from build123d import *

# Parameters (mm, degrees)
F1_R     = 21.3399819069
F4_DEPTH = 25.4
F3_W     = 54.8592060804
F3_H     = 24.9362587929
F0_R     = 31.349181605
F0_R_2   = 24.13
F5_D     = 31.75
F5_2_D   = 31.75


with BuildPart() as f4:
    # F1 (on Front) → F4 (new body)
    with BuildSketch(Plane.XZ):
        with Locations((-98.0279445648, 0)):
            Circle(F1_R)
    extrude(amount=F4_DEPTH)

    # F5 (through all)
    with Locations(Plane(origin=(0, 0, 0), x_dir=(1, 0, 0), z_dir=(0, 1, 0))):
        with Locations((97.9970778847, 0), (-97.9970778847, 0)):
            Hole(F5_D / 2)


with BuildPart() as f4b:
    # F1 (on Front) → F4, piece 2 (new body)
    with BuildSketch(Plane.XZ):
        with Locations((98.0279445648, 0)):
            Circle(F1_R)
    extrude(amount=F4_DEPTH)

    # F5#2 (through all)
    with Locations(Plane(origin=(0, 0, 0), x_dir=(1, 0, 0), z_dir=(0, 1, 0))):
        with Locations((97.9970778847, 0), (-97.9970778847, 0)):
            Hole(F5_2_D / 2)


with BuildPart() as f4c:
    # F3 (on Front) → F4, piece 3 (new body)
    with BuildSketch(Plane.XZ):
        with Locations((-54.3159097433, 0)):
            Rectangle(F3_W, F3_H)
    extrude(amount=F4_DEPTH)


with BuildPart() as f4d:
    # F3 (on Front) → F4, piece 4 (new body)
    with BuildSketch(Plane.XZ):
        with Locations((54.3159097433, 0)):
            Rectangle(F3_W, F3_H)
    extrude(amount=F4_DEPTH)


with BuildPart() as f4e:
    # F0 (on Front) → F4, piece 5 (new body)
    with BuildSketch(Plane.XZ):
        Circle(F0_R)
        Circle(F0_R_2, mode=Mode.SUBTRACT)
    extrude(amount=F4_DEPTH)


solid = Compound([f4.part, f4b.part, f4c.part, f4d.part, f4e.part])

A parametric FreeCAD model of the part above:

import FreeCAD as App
import Part
import Sketcher
from FreeCAD import Vector
Q = App.Units.Quantity


def add_polygon(sketch, points):
    """Adds a closed chain of lines whose ends are joined by coincident constraints."""
    first, n = sketch.GeometryCount, len(points)
    for a, b in zip(points, points[1:] + points[:1]):
        sketch.addGeometry(Part.LineSegment(App.Vector(*a, 0), App.Vector(*b, 0)), False)
    for i in range(n):
        sketch.addConstraint(Sketcher.Constraint("Coincident", first + i, 2, first + (i + 1) % n, 1))

doc = App.newDocument("Part")
params = doc.addObject("Spreadsheet::Sheet", "Params")
for row, (alias, value) in enumerate([
    ("pad1_length", "1 in"),
    ("sketch2_diameter", "1.25 in"),
    ("hole_diameter", "1.25 in"),
    ("pad2_length", "1 in"),
    ("sketch4_diameter", "1.25 in"),
    ("hole2_diameter", "1.25 in"),
    ("pad3_length", "1 in"),
    ("pad4_length", "1 in"),
    ("sketch7_diameter", "1.9 in"),
    ("pad5_length", "1 in"),
], start=1):
    params.set(f"A{row}", alias)
    params.set(f"B{row}", "=" + value)
    params.setAlias(f"B{row}", alias)

body = doc.addObject("PartDesign::Body", "Body")

sketch1 = doc.addObject("Sketcher::SketchObject", "Sketch")
body.addObject(sketch1)
sketch1.AttachmentSupport = (doc.XZ_Plane, [""])
sketch1.MapMode = "FlatFace"
sketch1.addGeometry(Part.Circle(Vector(-98.027945, 0, 0), Vector(0, 0, 1), 21.339982), False)
sketch1.addConstraint([
    Sketcher.Constraint("PointOnObject", 0, 3, -1),
    Sketcher.Constraint("Diameter", 0, Q("42.679964 mm")),
    Sketcher.Constraint("DistanceX", 0, 3, -1, 1, Q("98.027945 mm")),
])
pad1 = doc.addObject("PartDesign::Pad", "Pad")
body.addObject(pad1)
pad1.Profile = sketch1
pad1.setExpression("Length", "Params.pad1_length")

sketch2 = doc.addObject("Sketcher::SketchObject", "Sketch001")
body.addObject(sketch2)
sketch2.AttachmentSupport = (doc.XZ_Plane, [""])
sketch2.MapMode = "FlatFace"
sketch2.addGeometry([
    Part.Circle(Vector(97.997078, 0, 0), Vector(0, 0, 1), 15.875),
    Part.Circle(Vector(-97.997078, 0, 0), Vector(0, 0, 1), 15.875),
], False)
sketch2.addConstraint([
    Sketcher.Constraint("Equal", 0, 1),
    Sketcher.Constraint("Symmetric", 0, 3, 1, 3, -1, 1),
    Sketcher.Constraint("PointOnObject", 0, 3, -1),
    Sketcher.Constraint("Diameter", 0, Q("1.25 in")),
    Sketcher.Constraint("DistanceX", -1, 1, 0, 3, Q("97.997078 mm")),
])
sketch2.setExpression("Constraints[3]", "Params.sketch2_diameter")
doc.recompute()
hole = doc.addObject("PartDesign::Hole", "Hole")
body.addObject(hole)
hole.Profile = sketch2
hole.ThreadType = "None"
hole.setExpression("Diameter", "Params.hole_diameter")
hole.DepthType = "ThroughAll"
hole.Reversed = True
body2 = doc.addObject("PartDesign::Body", "Body001")

sketch3 = doc.addObject("Sketcher::SketchObject", "Sketch002")
body2.addObject(sketch3)
sketch3.AttachmentSupport = (doc.getObject("XZ_Plane001"), [""])
sketch3.MapMode = "FlatFace"
sketch3.addGeometry(Part.Circle(Vector(98.027945, 0, 0), Vector(0, 0, 1), 21.339982), False)
sketch3.addConstraint([
    Sketcher.Constraint("PointOnObject", 0, 3, -1),
    Sketcher.Constraint("Diameter", 0, Q("42.679964 mm")),
    Sketcher.Constraint("DistanceX", -1, 1, 0, 3, Q("98.027945 mm")),
])
pad2 = doc.addObject("PartDesign::Pad", "Pad001")
body2.addObject(pad2)
pad2.Profile = sketch3
pad2.setExpression("Length", "Params.pad2_length")

sketch4 = doc.addObject("Sketcher::SketchObject", "Sketch003")
body2.addObject(sketch4)
sketch4.AttachmentSupport = (doc.getObject("XZ_Plane001"), [""])
sketch4.MapMode = "FlatFace"
sketch4.addGeometry([
    Part.Circle(Vector(97.997078, 0, 0), Vector(0, 0, 1), 15.875),
    Part.Circle(Vector(-97.997078, 0, 0), Vector(0, 0, 1), 15.875),
], False)
sketch4.addConstraint([
    Sketcher.Constraint("Equal", 0, 1),
    Sketcher.Constraint("Symmetric", 0, 3, 1, 3, -1, 1),
    Sketcher.Constraint("PointOnObject", 0, 3, -1),
    Sketcher.Constraint("Diameter", 0, Q("1.25 in")),
    Sketcher.Constraint("DistanceX", -1, 1, 0, 3, Q("97.997078 mm")),
])
sketch4.setExpression("Constraints[3]", "Params.sketch4_diameter")
doc.recompute()
hole2 = doc.addObject("PartDesign::Hole", "Hole001")
body2.addObject(hole2)
hole2.Profile = sketch4
hole2.ThreadType = "None"
hole2.setExpression("Diameter", "Params.hole2_diameter")
hole2.DepthType = "ThroughAll"
hole2.Reversed = True
body3 = doc.addObject("PartDesign::Body", "Body002")

sketch5 = doc.addObject("Sketcher::SketchObject", "Sketch004")
body3.addObject(sketch5)
sketch5.AttachmentSupport = (doc.getObject("XZ_Plane002"), [""])
sketch5.MapMode = "FlatFace"
add_polygon(sketch5, [(-81.745513, 12.468129), (-81.745513, -12.468129), (-26.886307, -12.468129), (-26.886307, 12.468129)])
sketch5.addConstraint([
    Sketcher.Constraint("Vertical", 0),
    Sketcher.Constraint("Horizontal", 1),
    Sketcher.Constraint("Vertical", 2),
    Sketcher.Constraint("Horizontal", 3),
    Sketcher.Constraint("DistanceY", 0, 2, 0, 1, Q("24.936259 mm")),
    Sketcher.Constraint("DistanceX", 1, 1, 1, 2, Q("54.859206 mm")),
    Sketcher.Constraint("DistanceY", 0, 2, -1, 1, Q("12.468129 mm")),
    Sketcher.Constraint("DistanceX", 0, 2, -1, 1, Q("81.745513 mm")),
])
pad3 = doc.addObject("PartDesign::Pad", "Pad002")
body3.addObject(pad3)
pad3.Profile = sketch5
pad3.setExpression("Length", "Params.pad3_length")
body4 = doc.addObject("PartDesign::Body", "Body003")

sketch6 = doc.addObject("Sketcher::SketchObject", "Sketch005")
body4.addObject(sketch6)
sketch6.AttachmentSupport = (doc.getObject("XZ_Plane003"), [""])
sketch6.MapMode = "FlatFace"
add_polygon(sketch6, [(26.886307, 12.468129), (26.886307, -12.468129), (81.745513, -12.468129), (81.745513, 12.468129)])
sketch6.addConstraint([
    Sketcher.Constraint("Vertical", 0),
    Sketcher.Constraint("Horizontal", 1),
    Sketcher.Constraint("Vertical", 2),
    Sketcher.Constraint("Horizontal", 3),
    Sketcher.Constraint("DistanceY", 0, 2, 0, 1, Q("24.936259 mm")),
    Sketcher.Constraint("DistanceX", 1, 1, 1, 2, Q("54.859206 mm")),
    Sketcher.Constraint("DistanceY", 0, 2, -1, 1, Q("12.468129 mm")),
    Sketcher.Constraint("DistanceX", -1, 1, 0, 2, Q("26.886307 mm")),
])
pad4 = doc.addObject("PartDesign::Pad", "Pad003")
body4.addObject(pad4)
pad4.Profile = sketch6
pad4.setExpression("Length", "Params.pad4_length")
body5 = doc.addObject("PartDesign::Body", "Body004")

sketch7 = doc.addObject("Sketcher::SketchObject", "Sketch006")
body5.addObject(sketch7)
sketch7.AttachmentSupport = (doc.getObject("XZ_Plane004"), [""])
sketch7.MapMode = "FlatFace"
sketch7.addGeometry([
    Part.Circle(Vector(0, 0, 0), Vector(0, 0, 1), 31.349182),
    Part.Circle(Vector(0, 0, 0), Vector(0, 0, 1), 24.13),
], False)
sketch7.addConstraint([
    Sketcher.Constraint("Coincident", 0, 3, -1, 1),
    Sketcher.Constraint("Coincident", 1, 3, -1, 1),
    Sketcher.Constraint("Diameter", 1, Q("1.9 in")),
    Sketcher.Constraint("Diameter", 0, Q("62.698363 mm")),
])
sketch7.setExpression("Constraints[2]", "Params.sketch7_diameter")
pad5 = doc.addObject("PartDesign::Pad", "Pad004")
body5.addObject(pad5)
pad5.Profile = sketch7
pad5.setExpression("Length", "Params.pad5_length")

doc.recompute()
